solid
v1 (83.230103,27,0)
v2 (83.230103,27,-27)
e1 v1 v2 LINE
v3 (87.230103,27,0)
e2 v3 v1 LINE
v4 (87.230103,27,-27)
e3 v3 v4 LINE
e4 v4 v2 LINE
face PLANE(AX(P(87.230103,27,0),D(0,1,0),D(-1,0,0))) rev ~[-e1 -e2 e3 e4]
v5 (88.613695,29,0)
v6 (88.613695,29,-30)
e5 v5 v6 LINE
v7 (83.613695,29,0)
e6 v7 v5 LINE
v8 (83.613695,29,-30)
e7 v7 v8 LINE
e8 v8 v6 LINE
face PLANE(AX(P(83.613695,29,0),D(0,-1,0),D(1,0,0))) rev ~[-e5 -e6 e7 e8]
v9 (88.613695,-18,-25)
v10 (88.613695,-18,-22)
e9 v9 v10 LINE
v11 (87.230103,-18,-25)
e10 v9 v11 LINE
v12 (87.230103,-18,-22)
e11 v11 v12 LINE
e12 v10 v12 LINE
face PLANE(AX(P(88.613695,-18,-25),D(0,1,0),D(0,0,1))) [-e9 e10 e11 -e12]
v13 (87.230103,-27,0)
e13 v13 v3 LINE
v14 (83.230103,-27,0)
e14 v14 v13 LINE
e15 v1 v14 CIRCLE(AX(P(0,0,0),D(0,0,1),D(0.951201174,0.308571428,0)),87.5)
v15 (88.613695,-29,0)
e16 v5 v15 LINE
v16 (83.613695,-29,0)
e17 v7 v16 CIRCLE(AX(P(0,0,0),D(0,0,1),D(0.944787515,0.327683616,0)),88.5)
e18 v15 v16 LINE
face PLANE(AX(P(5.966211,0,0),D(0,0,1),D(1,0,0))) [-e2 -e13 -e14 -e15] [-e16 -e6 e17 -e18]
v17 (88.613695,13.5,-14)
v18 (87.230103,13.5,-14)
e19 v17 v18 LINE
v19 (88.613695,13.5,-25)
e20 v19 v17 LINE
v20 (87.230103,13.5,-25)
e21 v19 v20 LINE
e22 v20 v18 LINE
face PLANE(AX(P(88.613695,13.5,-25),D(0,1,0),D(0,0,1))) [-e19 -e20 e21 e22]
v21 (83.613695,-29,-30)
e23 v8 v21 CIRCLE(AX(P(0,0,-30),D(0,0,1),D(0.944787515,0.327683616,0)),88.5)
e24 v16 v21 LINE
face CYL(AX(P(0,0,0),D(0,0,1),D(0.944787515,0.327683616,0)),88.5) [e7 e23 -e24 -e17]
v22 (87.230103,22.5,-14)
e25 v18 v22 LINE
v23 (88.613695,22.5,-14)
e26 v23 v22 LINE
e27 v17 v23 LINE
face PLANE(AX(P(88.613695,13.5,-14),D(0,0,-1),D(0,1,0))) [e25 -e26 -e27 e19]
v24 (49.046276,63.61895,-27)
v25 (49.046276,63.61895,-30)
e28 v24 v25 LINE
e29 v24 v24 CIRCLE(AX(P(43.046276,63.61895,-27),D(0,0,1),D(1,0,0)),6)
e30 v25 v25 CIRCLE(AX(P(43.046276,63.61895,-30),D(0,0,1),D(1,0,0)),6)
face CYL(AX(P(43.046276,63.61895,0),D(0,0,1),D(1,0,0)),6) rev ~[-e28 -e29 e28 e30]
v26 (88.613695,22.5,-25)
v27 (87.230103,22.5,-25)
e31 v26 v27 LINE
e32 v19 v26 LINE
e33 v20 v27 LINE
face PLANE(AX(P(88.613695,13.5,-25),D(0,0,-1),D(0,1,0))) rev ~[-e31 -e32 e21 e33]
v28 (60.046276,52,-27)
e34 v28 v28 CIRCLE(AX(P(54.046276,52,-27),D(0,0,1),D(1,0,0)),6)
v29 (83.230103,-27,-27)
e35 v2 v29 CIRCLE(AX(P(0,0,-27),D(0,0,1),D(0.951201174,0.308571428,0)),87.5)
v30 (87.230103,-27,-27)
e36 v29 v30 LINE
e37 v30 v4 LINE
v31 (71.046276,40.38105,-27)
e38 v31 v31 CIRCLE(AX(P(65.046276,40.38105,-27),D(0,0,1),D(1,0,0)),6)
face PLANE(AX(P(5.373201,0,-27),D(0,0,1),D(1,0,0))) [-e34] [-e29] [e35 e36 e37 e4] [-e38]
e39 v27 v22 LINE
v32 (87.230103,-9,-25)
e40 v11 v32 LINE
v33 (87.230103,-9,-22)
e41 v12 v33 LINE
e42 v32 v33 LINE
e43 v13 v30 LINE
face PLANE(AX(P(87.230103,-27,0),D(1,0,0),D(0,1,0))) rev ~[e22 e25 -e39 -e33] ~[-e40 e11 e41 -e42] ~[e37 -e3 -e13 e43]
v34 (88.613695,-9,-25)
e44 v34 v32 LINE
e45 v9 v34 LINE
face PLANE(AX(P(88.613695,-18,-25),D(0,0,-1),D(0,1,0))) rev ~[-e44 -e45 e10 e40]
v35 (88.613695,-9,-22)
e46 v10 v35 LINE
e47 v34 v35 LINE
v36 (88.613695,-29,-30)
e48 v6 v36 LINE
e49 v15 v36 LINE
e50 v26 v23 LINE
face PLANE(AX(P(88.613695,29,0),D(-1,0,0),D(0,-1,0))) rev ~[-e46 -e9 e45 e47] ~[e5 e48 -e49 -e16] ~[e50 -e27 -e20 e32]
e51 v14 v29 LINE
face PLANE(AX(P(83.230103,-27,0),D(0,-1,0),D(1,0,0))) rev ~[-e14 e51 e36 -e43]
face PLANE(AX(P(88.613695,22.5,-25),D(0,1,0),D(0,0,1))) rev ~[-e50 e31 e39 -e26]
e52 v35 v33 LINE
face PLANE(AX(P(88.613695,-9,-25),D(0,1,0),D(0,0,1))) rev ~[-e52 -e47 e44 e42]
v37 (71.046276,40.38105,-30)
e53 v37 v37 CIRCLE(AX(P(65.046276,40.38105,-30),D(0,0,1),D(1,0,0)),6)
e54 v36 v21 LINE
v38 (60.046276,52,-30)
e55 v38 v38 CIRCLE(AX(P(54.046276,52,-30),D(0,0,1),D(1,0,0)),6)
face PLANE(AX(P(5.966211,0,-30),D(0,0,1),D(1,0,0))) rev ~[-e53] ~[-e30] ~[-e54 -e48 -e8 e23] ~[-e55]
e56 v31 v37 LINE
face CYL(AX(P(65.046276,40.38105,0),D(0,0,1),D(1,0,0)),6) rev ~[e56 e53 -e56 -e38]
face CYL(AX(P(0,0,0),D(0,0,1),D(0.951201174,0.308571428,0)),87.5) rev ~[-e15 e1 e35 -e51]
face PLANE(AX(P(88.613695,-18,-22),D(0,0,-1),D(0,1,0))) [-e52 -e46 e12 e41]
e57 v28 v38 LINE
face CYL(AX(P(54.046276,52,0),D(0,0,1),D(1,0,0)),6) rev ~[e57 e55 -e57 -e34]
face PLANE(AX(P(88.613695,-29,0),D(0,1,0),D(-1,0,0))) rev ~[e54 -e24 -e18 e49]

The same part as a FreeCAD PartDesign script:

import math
import FreeCAD as App
import Part
import Sketcher

V = App.Vector
Q = App.Units.Quantity

doc = App.newDocument("Part")
params = doc.addObject("Spreadsheet::Sheet", "Params")
for row, (alias, value) in enumerate([
    ("sketch1_diameter", "12 mm"),
    ("sketch1_radius", "88.5 mm"),
    ("sketch1_width", "5 mm"),
    ("sketch1_height", "58 mm"),
    ("pad1_length", "30 mm"),
    ("sketch2_radius", "87.5 mm"),
    ("sketch2_width", "4 mm"),
    ("sketch2_height", "54 mm"),
    ("pocket1_length", "27 mm"),
    ("sketch3_width", "9 mm"),
    ("sketch3_height", "11 mm"),
    ("sketch3_height2", "3 mm"),
    ("pocket2_length", "2 mm"),
], start=1):
    params.set(f"A{row}", alias)
    params.set(f"B{row}", "=" + value)
    params.setAlias(f"B{row}", alias)

body = doc.addObject("PartDesign::Body", "Body")

# Sketch on XY plane
sketch1 = body.newObject("Sketcher::SketchObject", "Sketch")
sketch1.AttachmentSupport = (doc.getObject("XY_Plane"), [""])
sketch1.MapMode = "FlatFace"
sketch1.addGeometry([
    Part.ArcOfCircle(Part.Circle(V(0, 0, 0), V(0, 0, 1), 88), math.radians(19), math.radians(341)),  # 0
    Part.LineSegment(V(84, -29, 0), V(89, -29, 0)),  # 1
    Part.LineSegment(V(89, -29, 0), V(89, 29, 0)),  # 2
    Part.LineSegment(V(89, 29, 0), V(84, 29, 0)),  # 3
    Part.Circle(V(65, 40, 0), V(0, 0, 1), 6),  # 4
    Part.Circle(V(54, 52, 0), V(0, 0, 1), 6),  # 5
    Part.Circle(V(43, 64, 0), V(0, 0, 1), 6),  # 6
], False)
sketch1.addConstraint([
    Sketcher.Constraint("Coincident", 0, 2, 1, 1),
    Sketcher.Constraint("Coincident", 1, 2, 2, 1),
    Sketcher.Constraint("Coincident", 2, 2, 3, 1),
    Sketcher.Constraint("Coincident", 3, 2, 0, 1),
    Sketcher.Constraint("Horizontal", 1),
    Sketcher.Constraint("Vertical", 2),
    Sketcher.Constraint("Horizontal", 3),
    Sketcher.Constraint("Coincident", 0, 3, -1, 1),
    Sketcher.Constraint("Equal", 4, 5),
    Sketcher.Constraint("Equal", 5, 6),
    Sketcher.Constraint("Vertical", 0, 2, 3, 2),
    Sketcher.Constraint("Diameter", 4, Q("12 mm")),
    Sketcher.Constraint("Radius", 0, Q("88.5 mm")),
    Sketcher.Constraint("DistanceX", 1, 1, 1, 2, Q("5 mm")),
    Sketcher.Constraint("DistanceY", 2, 1, 2, 2, Q("58 mm")),
    Sketcher.Constraint("DistanceY", -1, 1, 5, 3, Q("52 mm")),
    Sketcher.Constraint("DistanceX", 5, 3, 4, 3, Q("11 mm")),
    Sketcher.Constraint("DistanceX", 6, 3, 5, 3, Q("11 mm")),
    Sketcher.Constraint("DistanceY", 4, 3, 6, 3, Q("23.2379 mm")),
    Sketcher.Constraint("DistanceY", -1, 1, 4, 3, Q("40.38105 mm")),
    Sketcher.Constraint("DistanceX", 4, 3, 0, 2, Q("18.567419 mm")),
])
sketch1.setExpression("Constraints[11]", "Params.sketch1_diameter")
sketch1.setExpression("Constraints[12]", "Params.sketch1_radius")
sketch1.setExpression("Constraints[13]", "Params.sketch1_width")
sketch1.setExpression("Constraints[14]", "Params.sketch1_height")
pad1 = body.newObject("PartDesign::Pad", "Pad")
pad1.Profile = sketch1
pad1.setExpression("Length", "Params.pad1_length")
pad1.Reversed = True

# Sketch on XY plane
sketch2 = body.newObject("Sketcher::SketchObject", "Sketch001")
sketch2.AttachmentSupport = (doc.getObject("XY_Plane"), [""])
sketch2.MapMode = "FlatFace"
sketch2.addGeometry([
    Part.ArcOfCircle(Part.Circle(V(0, 0, 0), V(0, 0, 1), 87.5), math.radians(18), math.radians(342)),
    Part.LineSegment(V(83.2, -27, 0), V(87.2, -27, 0)),
    Part.LineSegment(V(87.2, -27, 0), V(87.2, 27, 0)),
    Part.LineSegment(V(87.2, 27, 0), V(83.2, 27, 0)),
], False)
sketch2.addConstraint([
    Sketcher.Constraint("Coincident", 0, 2, 1, 1),
    Sketcher.Constraint("Coincident", 1, 2, 2, 1),
    Sketcher.Constraint("Coincident", 2, 2, 3, 1),
    Sketcher.Constraint("Coincident", 3, 2, 0, 1),
    Sketcher.Constraint("Horizontal", 1),
    Sketcher.Constraint("Vertical", 2),
    Sketcher.Constraint("Horizontal", 3),
    Sketcher.Constraint("Coincident", 0, 3, -1, 1),
    Sketcher.Constraint("Vertical", 0, 2, 3, 2),
    Sketcher.Constraint("Radius", 0, Q("87.5 mm")),
    Sketcher.Constraint("DistanceX", 1, 1, 1, 2, Q("4 mm")),
    Sketcher.Constraint("DistanceY", 2, 1, 2, 2, Q("54 mm")),
])
sketch2.setExpression("Constraints[9]", "Params.sketch2_radius")
sketch2.setExpression("Constraints[10]", "Params.sketch2_width")
sketch2.setExpression("Constraints[11]", "Params.sketch2_height")
pocket1 = body.newObject("PartDesign::Pocket", "Pocket")
pocket1.Profile = sketch2
pocket1.setExpression("Length", "Params.pocket1_length")

# Sketch on YZ plane
sketch3 = body.newObject("Sketcher::SketchObject", "Sketch002")
sketch3.AttachmentSupport = (doc.getObject("YZ_Plane"), [""])
sketch3.MapMode = "FlatFace"
sketch3.AttachmentOffset = App.Placement(V(0, 0, 88.613695), App.Rotation())
sketch3.addGeometry([
    Part.LineSegment(V(13.5, -14, 0), V(13.5, -25, 0)),  # 0
    Part.LineSegment(V(13.5, -25, 0), V(22.5, -25, 0)),  # 1
    Part.LineSegment(V(22.5, -25, 0), V(22.5, -14, 0)),  # 2
    Part.LineSegment(V(22.5, -14, 0), V(13.5, -14, 0)),  # 3
    Part.LineSegment(V(-18, -22, 0), V(-18, -25, 0)),  # 4
    Part.LineSegment(V(-18, -25, 0), V(-9, -25, 0)),  # 5
    Part.LineSegment(V(-9, -25, 0), V(-9, -22, 0)),  # 6
    Part.LineSegment(V(-9, -22, 0), V(-18, -22, 0)),  # 7
], False)
sketch3.addConstraint([
    Sketcher.Constraint("Coincident", 0, 2, 1, 1),
    Sketcher.Constraint("Coincident", 1, 2, 2, 1),
    Sketcher.Constraint("Coincident", 2, 2, 3, 1),
    Sketcher.Constraint("Coincident", 3, 2, 0, 1),
    Sketcher.Constraint("Coincident", 4, 2, 5, 1),
    Sketcher.Constraint("Coincident", 5, 2, 6, 1),
    Sketcher.Constraint("Coincident", 6, 2, 7, 1),
    Sketcher.Constraint("Coincident", 7, 2, 4, 1),
    Sketcher.Constraint("Vertical", 0),
    Sketcher.Constraint("Horizontal", 1),
    Sketcher.Constraint("Vertical", 2),
    Sketcher.Constraint("Horizontal", 3),
    Sketcher.Constraint("Vertical", 4),
    Sketcher.Constraint("Horizontal", 5),
    Sketcher.Constraint("Vertical", 6),
    Sketcher.Constraint("Horizontal", 7),
    Sketcher.Constraint("Horizontal", 1, 2, 4, 2),
    Sketcher.Constraint("Equal", 3, 5),
    Sketcher.Constraint("DistanceX", 1, 1, 1, 2, Q("9 mm")),
    Sketcher.Constraint("DistanceY", 0, 2, 0, 1, Q("11 mm")),
    Sketcher.Constraint("DistanceY", 4, 2, 4, 1, Q("3 mm")),
    Sketcher.Constraint("DistanceY", 0, 2, -1, 1, Q("25 mm")),
    Sketcher.Constraint("DistanceX", 4, 2, -1, 1, Q("18 mm")),
    Sketcher.Constraint("DistanceX", -1, 1, 0, 2, Q("13.5 mm")),
])
sketch3.setExpression("Constraints[18]", "Params.sketch3_width")
sketch3.setExpression("Constraints[19]", "Params.sketch3_height")
sketch3.setExpression("Constraints[20]", "Params.sketch3_height2")
pocket2 = body.newObject("PartDesign::Pocket", "Pocket001")
pocket2.Profile = sketch3
pocket2.setExpression("Length", "Params.pocket2_length")

doc.recompute()
